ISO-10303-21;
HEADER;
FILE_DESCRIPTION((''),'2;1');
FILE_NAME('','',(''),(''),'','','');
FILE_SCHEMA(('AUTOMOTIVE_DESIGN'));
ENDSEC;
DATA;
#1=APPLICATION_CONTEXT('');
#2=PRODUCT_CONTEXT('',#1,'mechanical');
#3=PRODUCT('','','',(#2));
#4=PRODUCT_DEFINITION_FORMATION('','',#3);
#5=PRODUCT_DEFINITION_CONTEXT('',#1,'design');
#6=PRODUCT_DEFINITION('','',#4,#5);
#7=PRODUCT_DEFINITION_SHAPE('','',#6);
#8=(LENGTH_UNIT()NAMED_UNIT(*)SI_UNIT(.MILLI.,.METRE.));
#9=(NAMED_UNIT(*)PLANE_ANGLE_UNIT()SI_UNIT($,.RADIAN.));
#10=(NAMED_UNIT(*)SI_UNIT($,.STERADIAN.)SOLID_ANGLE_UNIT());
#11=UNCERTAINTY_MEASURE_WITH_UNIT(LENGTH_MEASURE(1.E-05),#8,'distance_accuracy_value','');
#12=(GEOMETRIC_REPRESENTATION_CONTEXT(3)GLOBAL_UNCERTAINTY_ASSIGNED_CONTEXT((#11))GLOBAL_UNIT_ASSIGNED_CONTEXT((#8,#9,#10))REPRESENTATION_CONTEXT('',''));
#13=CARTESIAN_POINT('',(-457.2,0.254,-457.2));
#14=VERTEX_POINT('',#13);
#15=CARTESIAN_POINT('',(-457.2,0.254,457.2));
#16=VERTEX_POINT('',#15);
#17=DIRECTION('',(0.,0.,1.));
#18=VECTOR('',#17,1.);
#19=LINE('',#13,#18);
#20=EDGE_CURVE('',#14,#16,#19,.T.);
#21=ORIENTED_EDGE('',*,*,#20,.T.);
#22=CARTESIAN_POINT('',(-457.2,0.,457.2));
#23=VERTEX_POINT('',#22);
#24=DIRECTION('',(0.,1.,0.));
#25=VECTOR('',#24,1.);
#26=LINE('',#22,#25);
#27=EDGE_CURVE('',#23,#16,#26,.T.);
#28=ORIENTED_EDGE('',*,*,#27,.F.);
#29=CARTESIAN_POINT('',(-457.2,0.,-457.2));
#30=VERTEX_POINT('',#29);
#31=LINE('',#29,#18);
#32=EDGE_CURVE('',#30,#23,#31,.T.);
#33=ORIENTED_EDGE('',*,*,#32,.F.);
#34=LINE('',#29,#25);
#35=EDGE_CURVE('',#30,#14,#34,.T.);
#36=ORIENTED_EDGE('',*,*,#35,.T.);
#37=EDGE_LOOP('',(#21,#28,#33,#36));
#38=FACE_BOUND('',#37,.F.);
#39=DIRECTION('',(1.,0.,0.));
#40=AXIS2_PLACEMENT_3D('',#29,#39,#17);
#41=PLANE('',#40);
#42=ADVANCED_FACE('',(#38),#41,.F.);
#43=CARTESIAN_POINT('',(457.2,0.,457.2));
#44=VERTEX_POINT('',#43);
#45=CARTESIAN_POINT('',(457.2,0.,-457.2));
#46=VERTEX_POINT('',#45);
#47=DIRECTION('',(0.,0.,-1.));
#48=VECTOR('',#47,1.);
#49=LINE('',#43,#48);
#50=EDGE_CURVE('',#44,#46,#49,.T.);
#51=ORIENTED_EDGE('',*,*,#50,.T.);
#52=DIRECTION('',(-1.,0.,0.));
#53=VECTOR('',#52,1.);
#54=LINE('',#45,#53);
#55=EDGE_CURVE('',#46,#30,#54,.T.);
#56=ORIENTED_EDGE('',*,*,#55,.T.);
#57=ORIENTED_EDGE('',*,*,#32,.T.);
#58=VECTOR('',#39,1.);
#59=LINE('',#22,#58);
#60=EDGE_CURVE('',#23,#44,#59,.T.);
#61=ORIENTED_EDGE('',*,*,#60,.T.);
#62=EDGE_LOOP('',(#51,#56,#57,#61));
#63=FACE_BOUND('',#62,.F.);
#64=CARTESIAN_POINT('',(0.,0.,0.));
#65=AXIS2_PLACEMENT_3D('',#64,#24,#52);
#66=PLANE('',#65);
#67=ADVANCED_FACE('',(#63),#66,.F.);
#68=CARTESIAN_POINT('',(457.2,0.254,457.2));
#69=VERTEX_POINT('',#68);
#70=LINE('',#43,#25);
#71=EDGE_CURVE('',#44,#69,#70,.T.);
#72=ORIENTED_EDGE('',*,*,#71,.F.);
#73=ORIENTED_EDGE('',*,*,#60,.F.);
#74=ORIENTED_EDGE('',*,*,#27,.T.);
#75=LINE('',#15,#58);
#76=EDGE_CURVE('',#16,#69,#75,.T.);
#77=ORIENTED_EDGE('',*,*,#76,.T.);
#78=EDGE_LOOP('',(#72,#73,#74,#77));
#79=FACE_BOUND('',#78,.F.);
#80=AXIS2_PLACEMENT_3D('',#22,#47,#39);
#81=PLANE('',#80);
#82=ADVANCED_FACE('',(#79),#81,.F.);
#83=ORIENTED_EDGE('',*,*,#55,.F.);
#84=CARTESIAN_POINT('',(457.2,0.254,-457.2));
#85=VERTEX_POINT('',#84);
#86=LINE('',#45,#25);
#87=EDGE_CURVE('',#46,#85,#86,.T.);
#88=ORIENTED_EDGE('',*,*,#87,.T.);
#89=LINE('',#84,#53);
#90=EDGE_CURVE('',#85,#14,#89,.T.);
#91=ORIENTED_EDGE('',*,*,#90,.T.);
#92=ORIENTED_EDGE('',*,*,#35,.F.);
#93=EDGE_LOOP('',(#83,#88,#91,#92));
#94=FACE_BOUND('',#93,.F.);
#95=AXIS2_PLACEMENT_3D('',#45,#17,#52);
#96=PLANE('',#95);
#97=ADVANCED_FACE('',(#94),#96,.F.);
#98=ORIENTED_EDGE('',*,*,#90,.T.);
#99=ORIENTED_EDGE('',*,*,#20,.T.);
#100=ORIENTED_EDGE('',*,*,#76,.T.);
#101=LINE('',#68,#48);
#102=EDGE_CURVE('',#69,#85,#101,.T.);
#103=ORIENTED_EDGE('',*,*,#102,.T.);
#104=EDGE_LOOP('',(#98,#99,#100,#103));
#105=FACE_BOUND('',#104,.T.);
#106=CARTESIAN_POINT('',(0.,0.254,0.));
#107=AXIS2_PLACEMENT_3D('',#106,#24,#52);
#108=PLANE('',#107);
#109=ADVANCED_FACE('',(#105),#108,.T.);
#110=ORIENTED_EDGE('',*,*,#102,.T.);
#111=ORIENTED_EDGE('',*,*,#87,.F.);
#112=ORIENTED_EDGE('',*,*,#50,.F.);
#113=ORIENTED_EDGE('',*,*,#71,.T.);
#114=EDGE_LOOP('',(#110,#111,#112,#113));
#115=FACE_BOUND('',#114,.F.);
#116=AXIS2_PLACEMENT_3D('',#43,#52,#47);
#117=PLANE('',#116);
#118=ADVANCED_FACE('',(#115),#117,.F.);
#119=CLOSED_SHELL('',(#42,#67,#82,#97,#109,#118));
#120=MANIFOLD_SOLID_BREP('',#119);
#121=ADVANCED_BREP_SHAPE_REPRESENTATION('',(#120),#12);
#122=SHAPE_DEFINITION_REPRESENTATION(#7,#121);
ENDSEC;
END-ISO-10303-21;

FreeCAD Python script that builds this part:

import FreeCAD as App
import Part
import Sketcher

V = App.Vector
Q = App.Units.Quantity

doc = App.newDocument("Part")
body = doc.addObject("PartDesign::Body", "Body")

# Sketch on XZ plane
sketch1 = body.newObject("Sketcher::SketchObject", "Sketch")
sketch1.AttachmentSupport = (doc.getObject("XZ_Plane"), [""])
sketch1.MapMode = "FlatFace"
sketch1.addGeometry(Part.LineSegment(V(-457, -457, 0), V(-457, 457, 0)), False)
sketch1.addGeometry(Part.LineSegment(V(-457, 457, 0), V(457, 457, 0)), False)
sketch1.addGeometry(Part.LineSegment(V(457, 457, 0), V(457, -457, 0)), False)
sketch1.addGeometry(Part.LineSegment(V(457, -457, 0), V(-457, -457, 0)), False)
sketch1.addConstraint(Sketcher.Constraint("Coincident", 0, 2, 1, 1))
sketch1.addConstraint(Sketcher.Constraint("Coincident", 1, 2, 2, 1))
sketch1.addConstraint(Sketcher.Constraint("Coincident", 2, 2, 3, 1))
sketch1.addConstraint(Sketcher.Constraint("Coincident", 3, 2, 0, 1))
sketch1.addConstraint(Sketcher.Constraint("Vertical", 0))
sketch1.addConstraint(Sketcher.Constraint("Horizontal", 1))
sketch1.addConstraint(Sketcher.Constraint("Vertical", 2))
sketch1.addConstraint(Sketcher.Constraint("Horizontal", 3))
sketch1.addConstraint(Sketcher.Constraint("Symmetric", 0, 2, 2, 2, -1, 1))
sketch1.addConstraint(Sketcher.Constraint("Equal", 3, 0))
sketch1.addConstraint(Sketcher.Constraint("DistanceX", 1, 1, 1, 2, Q("36 in")))
pad1 = body.newObject("PartDesign::Pad", "Pad")
pad1.Profile = sketch1
pad1.Length = Q("0.01 in")
pad1.Reversed = True

doc.recompute()
